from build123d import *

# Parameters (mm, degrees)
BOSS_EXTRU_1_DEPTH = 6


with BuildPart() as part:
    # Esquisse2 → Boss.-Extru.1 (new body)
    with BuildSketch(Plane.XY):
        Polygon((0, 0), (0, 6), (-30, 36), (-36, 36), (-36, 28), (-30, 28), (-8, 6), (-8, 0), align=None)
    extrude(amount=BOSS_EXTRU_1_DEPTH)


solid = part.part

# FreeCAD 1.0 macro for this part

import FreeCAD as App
import Part
import Sketcher
from FreeCAD import Vector


def add_polygon(sketch, points):
    """Adds a closed chain of lines whose ends are joined by coincident constraints."""
    first, n = sketch.GeometryCount, len(points)
    for a, b in zip(points, points[1:] + points[:1]):
        sketch.addGeometry(Part.LineSegment(App.Vector(*a, 0), App.Vector(*b, 0)), False)
    for i in range(n):
        sketch.addConstraint(Sketcher.Constraint("Coincident", first + i, 2, first + (i + 1) % n, 1))

doc = App.newDocument("Part")
body = doc.addObject("PartDesign::Body", "Body")

sketch1 = doc.addObject("Sketcher::SketchObject", "Sketch")
body.addObject(sketch1)
sketch1.AttachmentSupport = (doc.XY_Plane, [""])
sketch1.MapMode = "FlatFace"
add_polygon(sketch1, [(0, 0), (0, 6), (-30, 36), (-36, 36), (-36, 28), (-30, 28), (-8, 6), (-8, 0)])
sketch1.addConstraint([
    Sketcher.Constraint("Vertical", 0),
    Sketcher.Constraint("Horizontal", 2),
    Sketcher.Constraint("Vertical", 3),
    Sketcher.Constraint("Horizontal", 4),
    Sketcher.Constraint("Vertical", 6),
    Sketcher.Constraint("Horizontal", 7),
    Sketcher.Constraint("Coincident", 7, 2, -1, 1),
    Sketcher.Constraint("Parallel", 1, 5),
    Sketcher.Constraint("Horizontal", 0, 2, 5, 2),
    Sketcher.Constraint("Vertical", 1, 2, 4, 2),
    Sketcher.Constraint("Equal", 4, 0),
    Sketcher.Constraint("Equal", 7, 3),
    Sketcher.Constraint("DistanceX", 2, 2, 2, 1, 6.0),
    Sketcher.Constraint("DistanceX", 7, 1, 7, 2, 8.0),
    Sketcher.Constraint("DistanceX", 1, 2, -1, 1, 30.0),
])
pad1 = doc.addObject("PartDesign::Pad", "Pad")
body.addObject(pad1)
pad1.Profile = sketch1
pad1.Length = 6

doc.recompute()
